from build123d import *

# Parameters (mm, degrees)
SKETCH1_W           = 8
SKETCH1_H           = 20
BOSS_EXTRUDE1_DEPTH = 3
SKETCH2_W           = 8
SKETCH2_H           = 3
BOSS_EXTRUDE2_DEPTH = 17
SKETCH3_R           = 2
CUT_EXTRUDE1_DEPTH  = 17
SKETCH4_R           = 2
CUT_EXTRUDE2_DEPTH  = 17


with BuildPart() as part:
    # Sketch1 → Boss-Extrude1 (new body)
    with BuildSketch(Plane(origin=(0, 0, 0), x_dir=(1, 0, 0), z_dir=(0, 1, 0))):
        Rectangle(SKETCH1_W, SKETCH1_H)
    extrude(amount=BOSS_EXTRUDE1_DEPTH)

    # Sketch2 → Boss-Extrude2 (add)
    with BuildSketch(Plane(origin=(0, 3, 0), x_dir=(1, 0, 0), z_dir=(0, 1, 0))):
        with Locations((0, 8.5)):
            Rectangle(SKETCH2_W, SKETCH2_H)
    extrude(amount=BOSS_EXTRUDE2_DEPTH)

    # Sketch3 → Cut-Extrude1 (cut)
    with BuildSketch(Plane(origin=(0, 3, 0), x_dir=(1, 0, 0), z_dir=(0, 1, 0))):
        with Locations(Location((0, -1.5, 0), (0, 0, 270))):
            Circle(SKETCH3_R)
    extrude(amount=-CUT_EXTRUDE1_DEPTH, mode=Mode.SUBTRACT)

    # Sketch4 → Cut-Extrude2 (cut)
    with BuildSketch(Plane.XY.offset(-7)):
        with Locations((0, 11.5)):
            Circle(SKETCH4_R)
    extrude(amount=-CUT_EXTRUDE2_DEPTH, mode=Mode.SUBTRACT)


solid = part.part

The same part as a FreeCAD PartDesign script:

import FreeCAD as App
import Part
import Sketcher
Q = App.Units.Quantity

doc = App.newDocument("Part")
body = doc.addObject("PartDesign::Body", "Body")

# Sketch on XZ plane
sketch1 = body.newObject("Sketcher::SketchObject", "Sketch")
sketch1.AttachmentSupport = (doc.getObject("XZ_Plane"), [""])
sketch1.MapMode = "FlatFace"
sketch1.addGeometry([
    Part.LineSegment(App.Vector(-4, -10, 0), App.Vector(-4, 10, 0)),
    Part.LineSegment(App.Vector(-4, 10, 0), App.Vector(4, 10, 0)),
    Part.LineSegment(App.Vector(4, 10, 0), App.Vector(4, -10, 0)),
    Part.LineSegment(App.Vector(4, -10, 0), App.Vector(-4, -10, 0)),
], False)
sketch1.addConstraint([
    Sketcher.Constraint("Coincident", 0, 2, 1, 1),
    Sketcher.Constraint("Coincident", 1, 2, 2, 1),
    Sketcher.Constraint("Coincident", 2, 2, 3, 1),
    Sketcher.Constraint("Coincident", 3, 2, 0, 1),
    Sketcher.Constraint("Vertical", 0),
    Sketcher.Constraint("Horizontal", 1),
    Sketcher.Constraint("Vertical", 2),
    Sketcher.Constraint("Horizontal", 3),
    Sketcher.Constraint("Symmetric", 0, 2, 2, 2, -1, 1),
    Sketcher.Constraint("DistanceX", 1, 1, 1, 2, Q("8 mm")),
    Sketcher.Constraint("DistanceY", 0, 1, 0, 2, Q("20 mm")),
])
pad1 = body.newObject("PartDesign::Pad", "Pad")
pad1.Profile = sketch1
pad1.Length = 3
pad1.Reversed = True

# Sketch on XZ plane
sketch2 = body.newObject("Sketcher::SketchObject", "Sketch001")
sketch2.AttachmentSupport = (doc.getObject("XZ_Plane"), [""])
sketch2.MapMode = "FlatFace"
sketch2.AttachmentOffset = App.Placement(App.Vector(0, 0, -3), App.Rotation())
sketch2.addGeometry([
    Part.LineSegment(App.Vector(-4, -10, 0), App.Vector(-4, -7, 0)),
    Part.LineSegment(App.Vector(-4, -7, 0), App.Vector(4, -7, 0)),
    Part.LineSegment(App.Vector(4, -7, 0), App.Vector(4, -10, 0)),
    Part.LineSegment(App.Vector(4, -10, 0), App.Vector(-4, -10, 0)),
], False)
sketch2.addConstraint([
    Sketcher.Constraint("Coincident", 0, 2, 1, 1),
    Sketcher.Constraint("Coincident", 1, 2, 2, 1),
    Sketcher.Constraint("Coincident", 2, 2, 3, 1),
    Sketcher.Constraint("Coincident", 3, 2, 0, 1),
    Sketcher.Constraint("Vertical", 0),
    Sketcher.Constraint("Horizontal", 1),
    Sketcher.Constraint("Vertical", 2),
    Sketcher.Constraint("Horizontal", 3),
    Sketcher.Constraint("DistanceX", 1, 1, 1, 2, Q("8 mm")),
    Sketcher.Constraint("DistanceY", 0, 1, 0, 2, Q("3 mm")),
    Sketcher.Constraint("DistanceX", 0, 2, -1, 1, Q("4 mm")),
    Sketcher.Constraint("DistanceY", 0, 2, -1, 1, Q("7 mm")),
])
pad2 = body.newObject("PartDesign::Pad", "Pad001")
pad2.Profile = sketch2
pad2.Length = 17
pad2.Reversed = True

# Sketch on XZ plane
sketch3 = body.newObject("Sketcher::SketchObject", "Sketch002")
sketch3.AttachmentSupport = (doc.getObject("XZ_Plane"), [""])
sketch3.MapMode = "FlatFace"
sketch3.AttachmentOffset = App.Placement(App.Vector(0, 0, -3), App.Rotation())
sketch3.addGeometry(Part.Circle(App.Vector(0, 1.5, 0), App.Vector(0, 0, 1), 2), False)
sketch3.addConstraint([
    Sketcher.Constraint("PointOnObject", 0, 3, -2),
    Sketcher.Constraint("Diameter", 0, Q("4 mm")),
    Sketcher.Constraint("DistanceY", -1, 1, 0, 3, Q("1.5 mm")),
])
pocket1 = body.newObject("PartDesign::Pocket", "Pocket")
pocket1.Profile = sketch3
pocket1.Length = 17
pocket1.Reversed = True

# Sketch on XY plane
sketch4 = body.newObject("Sketcher::SketchObject", "Sketch003")
sketch4.AttachmentSupport = (doc.getObject("XY_Plane"), [""])
sketch4.MapMode = "FlatFace"
sketch4.AttachmentOffset = App.Placement(App.Vector(0, 0, -7), App.Rotation())
sketch4.addGeometry(Part.Circle(App.Vector(0, 11.5, 0), App.Vector(0, 0, 1), 2), False)
sketch4.addConstraint([
    Sketcher.Constraint("PointOnObject", 0, 3, -2),
    Sketcher.Constraint("Diameter", 0, Q("4 mm")),
    Sketcher.Constraint("DistanceY", -1, 1, 0, 3, Q("11.5 mm")),
])
pocket2 = body.newObject("PartDesign::Pocket", "Pocket001")
pocket2.Profile = sketch4
pocket2.Length = 17

doc.recompute()
